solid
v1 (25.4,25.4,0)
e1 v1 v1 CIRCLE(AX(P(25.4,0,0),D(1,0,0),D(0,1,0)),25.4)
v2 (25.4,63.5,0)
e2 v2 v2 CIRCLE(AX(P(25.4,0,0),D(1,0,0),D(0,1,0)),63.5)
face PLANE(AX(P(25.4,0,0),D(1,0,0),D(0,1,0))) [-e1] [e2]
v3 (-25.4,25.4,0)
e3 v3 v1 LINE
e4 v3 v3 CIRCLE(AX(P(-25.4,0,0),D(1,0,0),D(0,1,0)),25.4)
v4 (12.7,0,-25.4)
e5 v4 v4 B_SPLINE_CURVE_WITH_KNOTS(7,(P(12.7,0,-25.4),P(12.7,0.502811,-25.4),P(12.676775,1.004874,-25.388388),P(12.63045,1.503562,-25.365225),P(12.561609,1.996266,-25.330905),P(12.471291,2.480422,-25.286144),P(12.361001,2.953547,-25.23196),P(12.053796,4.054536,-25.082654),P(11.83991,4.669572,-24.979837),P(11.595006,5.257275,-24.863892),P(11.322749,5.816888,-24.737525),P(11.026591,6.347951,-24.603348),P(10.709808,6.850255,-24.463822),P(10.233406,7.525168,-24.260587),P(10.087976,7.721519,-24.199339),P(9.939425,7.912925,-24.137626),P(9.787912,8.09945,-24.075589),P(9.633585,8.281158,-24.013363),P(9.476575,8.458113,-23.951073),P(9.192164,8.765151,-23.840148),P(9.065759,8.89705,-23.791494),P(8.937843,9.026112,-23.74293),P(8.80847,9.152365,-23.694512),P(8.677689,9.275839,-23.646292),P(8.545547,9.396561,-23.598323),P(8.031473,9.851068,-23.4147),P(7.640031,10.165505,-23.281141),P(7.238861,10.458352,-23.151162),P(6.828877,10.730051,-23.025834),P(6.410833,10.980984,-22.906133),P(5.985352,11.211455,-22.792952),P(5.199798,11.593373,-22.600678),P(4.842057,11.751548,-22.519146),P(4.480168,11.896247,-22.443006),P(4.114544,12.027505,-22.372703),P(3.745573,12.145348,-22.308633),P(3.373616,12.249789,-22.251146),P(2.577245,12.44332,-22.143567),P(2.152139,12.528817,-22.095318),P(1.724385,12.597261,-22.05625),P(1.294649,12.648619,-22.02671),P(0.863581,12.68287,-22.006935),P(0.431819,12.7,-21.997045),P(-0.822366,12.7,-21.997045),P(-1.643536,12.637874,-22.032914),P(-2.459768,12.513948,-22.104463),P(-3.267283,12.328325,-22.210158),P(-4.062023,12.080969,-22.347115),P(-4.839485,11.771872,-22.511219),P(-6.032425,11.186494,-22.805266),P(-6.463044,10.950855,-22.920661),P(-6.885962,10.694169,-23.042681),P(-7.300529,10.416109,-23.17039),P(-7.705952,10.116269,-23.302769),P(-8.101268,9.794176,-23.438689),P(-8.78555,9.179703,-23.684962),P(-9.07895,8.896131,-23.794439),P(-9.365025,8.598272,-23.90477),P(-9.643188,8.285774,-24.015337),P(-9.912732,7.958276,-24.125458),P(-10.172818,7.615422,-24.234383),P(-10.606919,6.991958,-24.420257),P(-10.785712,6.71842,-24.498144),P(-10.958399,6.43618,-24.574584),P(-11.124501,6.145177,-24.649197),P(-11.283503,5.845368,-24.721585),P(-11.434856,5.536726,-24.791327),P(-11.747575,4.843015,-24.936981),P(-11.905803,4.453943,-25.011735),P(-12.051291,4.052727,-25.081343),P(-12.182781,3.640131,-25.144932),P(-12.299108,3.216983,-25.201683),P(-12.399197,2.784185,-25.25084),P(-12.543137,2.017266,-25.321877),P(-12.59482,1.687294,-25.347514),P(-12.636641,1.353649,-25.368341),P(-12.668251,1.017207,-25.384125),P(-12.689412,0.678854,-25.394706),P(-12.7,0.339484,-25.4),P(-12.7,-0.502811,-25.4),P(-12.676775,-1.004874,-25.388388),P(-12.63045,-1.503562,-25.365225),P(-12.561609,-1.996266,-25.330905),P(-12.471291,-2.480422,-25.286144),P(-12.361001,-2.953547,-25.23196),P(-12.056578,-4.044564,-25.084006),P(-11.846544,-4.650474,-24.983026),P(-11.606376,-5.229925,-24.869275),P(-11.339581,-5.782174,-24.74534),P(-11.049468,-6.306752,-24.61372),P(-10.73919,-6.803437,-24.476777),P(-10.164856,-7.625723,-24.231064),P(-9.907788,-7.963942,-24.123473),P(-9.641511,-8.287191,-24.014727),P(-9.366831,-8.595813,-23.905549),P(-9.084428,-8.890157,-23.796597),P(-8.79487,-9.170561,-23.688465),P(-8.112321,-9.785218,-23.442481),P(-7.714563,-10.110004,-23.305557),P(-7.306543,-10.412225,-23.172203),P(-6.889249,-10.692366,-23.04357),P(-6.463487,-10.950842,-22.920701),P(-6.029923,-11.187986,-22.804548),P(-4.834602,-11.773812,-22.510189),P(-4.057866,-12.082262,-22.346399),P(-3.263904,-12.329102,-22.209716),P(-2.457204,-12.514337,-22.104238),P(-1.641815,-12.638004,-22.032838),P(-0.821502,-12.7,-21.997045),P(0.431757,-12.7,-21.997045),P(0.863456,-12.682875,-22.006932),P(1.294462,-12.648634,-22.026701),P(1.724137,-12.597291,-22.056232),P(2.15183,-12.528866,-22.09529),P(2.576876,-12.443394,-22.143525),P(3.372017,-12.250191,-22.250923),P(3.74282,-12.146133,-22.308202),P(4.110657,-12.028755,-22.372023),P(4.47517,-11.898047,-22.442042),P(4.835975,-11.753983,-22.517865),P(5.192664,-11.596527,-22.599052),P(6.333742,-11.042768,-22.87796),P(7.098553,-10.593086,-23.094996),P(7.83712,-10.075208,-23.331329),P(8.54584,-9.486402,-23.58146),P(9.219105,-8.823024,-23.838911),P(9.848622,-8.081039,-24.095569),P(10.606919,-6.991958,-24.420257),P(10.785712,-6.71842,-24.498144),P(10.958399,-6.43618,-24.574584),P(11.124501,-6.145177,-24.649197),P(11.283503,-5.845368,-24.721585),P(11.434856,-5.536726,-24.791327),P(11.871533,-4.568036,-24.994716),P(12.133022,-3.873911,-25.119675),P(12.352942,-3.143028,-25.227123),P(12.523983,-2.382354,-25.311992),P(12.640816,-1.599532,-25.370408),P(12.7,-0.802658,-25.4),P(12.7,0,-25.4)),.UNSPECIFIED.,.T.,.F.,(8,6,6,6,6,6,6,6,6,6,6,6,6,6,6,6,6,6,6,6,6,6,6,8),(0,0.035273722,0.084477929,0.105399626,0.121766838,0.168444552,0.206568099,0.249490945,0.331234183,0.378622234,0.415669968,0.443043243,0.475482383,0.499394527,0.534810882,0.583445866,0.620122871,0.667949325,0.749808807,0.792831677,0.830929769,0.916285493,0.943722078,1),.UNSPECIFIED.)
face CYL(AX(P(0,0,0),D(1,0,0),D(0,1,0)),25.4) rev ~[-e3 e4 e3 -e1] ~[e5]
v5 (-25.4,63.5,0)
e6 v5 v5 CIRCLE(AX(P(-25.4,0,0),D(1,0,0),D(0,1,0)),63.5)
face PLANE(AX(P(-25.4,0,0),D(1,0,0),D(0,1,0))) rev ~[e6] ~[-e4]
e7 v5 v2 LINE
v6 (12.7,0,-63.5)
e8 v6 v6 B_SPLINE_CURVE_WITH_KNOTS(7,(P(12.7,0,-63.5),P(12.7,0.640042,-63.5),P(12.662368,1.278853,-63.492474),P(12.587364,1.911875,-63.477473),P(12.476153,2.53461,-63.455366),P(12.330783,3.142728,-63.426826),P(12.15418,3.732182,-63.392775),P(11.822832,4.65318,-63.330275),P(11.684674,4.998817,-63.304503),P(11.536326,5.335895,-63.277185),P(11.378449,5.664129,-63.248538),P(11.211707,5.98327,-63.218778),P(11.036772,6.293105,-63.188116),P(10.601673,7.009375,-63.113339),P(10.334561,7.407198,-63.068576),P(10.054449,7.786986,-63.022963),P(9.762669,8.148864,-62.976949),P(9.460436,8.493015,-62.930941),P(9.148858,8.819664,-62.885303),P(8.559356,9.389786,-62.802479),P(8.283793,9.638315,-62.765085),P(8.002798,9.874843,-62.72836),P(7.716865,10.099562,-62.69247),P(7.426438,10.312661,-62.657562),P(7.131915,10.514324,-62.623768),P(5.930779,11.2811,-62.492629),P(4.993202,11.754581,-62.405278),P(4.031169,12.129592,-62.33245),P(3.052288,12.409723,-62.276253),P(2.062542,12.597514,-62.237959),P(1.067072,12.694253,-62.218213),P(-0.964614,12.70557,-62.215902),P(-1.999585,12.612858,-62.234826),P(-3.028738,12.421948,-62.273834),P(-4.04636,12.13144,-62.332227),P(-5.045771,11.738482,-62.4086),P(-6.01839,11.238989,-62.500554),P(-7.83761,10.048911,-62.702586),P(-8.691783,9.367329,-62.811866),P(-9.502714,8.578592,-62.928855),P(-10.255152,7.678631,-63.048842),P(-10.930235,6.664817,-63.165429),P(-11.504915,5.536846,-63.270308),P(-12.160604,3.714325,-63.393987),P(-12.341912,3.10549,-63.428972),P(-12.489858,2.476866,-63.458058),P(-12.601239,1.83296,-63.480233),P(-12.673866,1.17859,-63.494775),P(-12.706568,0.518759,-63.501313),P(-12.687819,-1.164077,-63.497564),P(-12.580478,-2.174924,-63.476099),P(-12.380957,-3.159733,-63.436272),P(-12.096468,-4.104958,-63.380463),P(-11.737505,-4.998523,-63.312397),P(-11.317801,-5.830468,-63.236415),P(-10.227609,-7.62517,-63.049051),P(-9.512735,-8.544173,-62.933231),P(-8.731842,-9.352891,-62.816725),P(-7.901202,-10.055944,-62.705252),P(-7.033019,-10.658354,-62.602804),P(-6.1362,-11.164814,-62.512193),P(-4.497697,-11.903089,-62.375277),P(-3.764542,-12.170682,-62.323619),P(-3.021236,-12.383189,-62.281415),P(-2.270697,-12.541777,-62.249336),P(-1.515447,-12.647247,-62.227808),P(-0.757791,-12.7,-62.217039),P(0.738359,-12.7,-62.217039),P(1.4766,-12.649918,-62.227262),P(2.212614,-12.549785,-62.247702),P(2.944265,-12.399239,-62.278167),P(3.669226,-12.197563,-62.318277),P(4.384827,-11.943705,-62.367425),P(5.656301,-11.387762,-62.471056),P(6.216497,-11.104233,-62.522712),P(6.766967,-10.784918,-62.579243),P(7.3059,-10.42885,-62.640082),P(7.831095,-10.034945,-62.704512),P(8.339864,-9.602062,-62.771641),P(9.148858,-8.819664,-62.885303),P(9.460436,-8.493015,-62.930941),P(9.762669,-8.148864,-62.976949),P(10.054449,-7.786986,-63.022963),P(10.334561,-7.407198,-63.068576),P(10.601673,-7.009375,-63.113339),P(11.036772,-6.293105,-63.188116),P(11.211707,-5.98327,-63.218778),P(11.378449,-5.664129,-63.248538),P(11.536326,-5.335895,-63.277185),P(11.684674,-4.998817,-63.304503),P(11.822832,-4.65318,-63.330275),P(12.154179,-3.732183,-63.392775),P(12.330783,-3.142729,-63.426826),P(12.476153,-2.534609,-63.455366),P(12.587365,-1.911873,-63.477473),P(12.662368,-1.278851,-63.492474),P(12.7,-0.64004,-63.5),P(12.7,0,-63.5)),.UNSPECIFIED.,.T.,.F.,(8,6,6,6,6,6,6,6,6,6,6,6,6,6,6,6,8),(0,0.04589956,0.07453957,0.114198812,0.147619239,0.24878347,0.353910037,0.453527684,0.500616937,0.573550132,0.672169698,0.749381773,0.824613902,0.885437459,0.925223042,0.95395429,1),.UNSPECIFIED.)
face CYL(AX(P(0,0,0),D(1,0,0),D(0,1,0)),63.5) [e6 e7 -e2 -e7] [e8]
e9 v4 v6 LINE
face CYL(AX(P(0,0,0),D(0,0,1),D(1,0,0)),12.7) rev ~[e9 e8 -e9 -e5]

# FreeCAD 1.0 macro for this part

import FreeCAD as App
import Part
import Sketcher
Q = App.Units.Quantity

doc = App.newDocument("Part")
params = doc.addObject("Spreadsheet::Sheet", "Params")
for row, (alias, value) in enumerate([
    ("sketch1_diameter", "5 in"),
    ("pad1_length", "2 in"),
    ("sketch2_diameter", "1 in"),
    ("pocket1_length", "3 in"),
    ("sketch3_diameter", "2 in"),
    ("pocket2_length", "2.5 in"),
], start=1):
    params.set(f"A{row}", alias)
    params.set(f"B{row}", "=" + value)
    params.setAlias(f"B{row}", alias)

body = doc.addObject("PartDesign::Body", "Body")

sketch1 = doc.addObject("Sketcher::SketchObject", "Sketch")
body.addObject(sketch1)
sketch1.AttachmentSupport = (doc.YZ_Plane, [""])
sketch1.MapMode = "FlatFace"
sketch1.addGeometry(Part.Circle(App.Vector(0, 0, 0), App.Vector(0, 0, 1), 64), False)
sketch1.addConstraint([
    Sketcher.Constraint("Coincident", 0, 3, -1, 1),
    Sketcher.Constraint("Diameter", 0, Q("5 in")),
])
sketch1.setExpression("Constraints[1]", "Params.sketch1_diameter")
pad1 = doc.addObject("PartDesign::Pad", "Pad")
body.addObject(pad1)
pad1.Profile = sketch1
pad1.setExpression("Length", "Params.pad1_length")
pad1.Midplane = True

sketch2 = doc.addObject("Sketcher::SketchObject", "Sketch001")
body.addObject(sketch2)
sketch2.AttachmentSupport = (doc.XY_Plane, [""])
sketch2.MapMode = "FlatFace"
sketch2.addGeometry(Part.Circle(App.Vector(0, 0, 0), App.Vector(0, 0, 1), 13), False)
sketch2.addConstraint([
    Sketcher.Constraint("Coincident", 0, 3, -1, 1),
    Sketcher.Constraint("Diameter", 0, Q("1 in")),
])
sketch2.setExpression("Constraints[1]", "Params.sketch2_diameter")
pocket1 = doc.addObject("PartDesign::Pocket", "Pocket")
body.addObject(pocket1)
pocket1.Profile = sketch2
pocket1.setExpression("Length", "Params.pocket1_length")

sketch3 = doc.addObject("Sketcher::SketchObject", "Sketch002")
body.addObject(sketch3)
sketch3.AttachmentSupport = (doc.YZ_Plane, [""])
sketch3.MapMode = "FlatFace"
sketch3.addGeometry(Part.Circle(App.Vector(0, 0, 0), App.Vector(0, 0, 1), 25), False)
sketch3.addConstraint([
    Sketcher.Constraint("Coincident", 0, 3, -1, 1),
    Sketcher.Constraint("Diameter", 0, Q("2 in")),
])
sketch3.setExpression("Constraints[1]", "Params.sketch3_diameter")
pocket2 = doc.addObject("PartDesign::Pocket", "Pocket001")
body.addObject(pocket2)
pocket2.Profile = sketch3
pocket2.setExpression("Length", "Params.pocket2_length")
pocket2.Midplane = True

doc.recompute()
